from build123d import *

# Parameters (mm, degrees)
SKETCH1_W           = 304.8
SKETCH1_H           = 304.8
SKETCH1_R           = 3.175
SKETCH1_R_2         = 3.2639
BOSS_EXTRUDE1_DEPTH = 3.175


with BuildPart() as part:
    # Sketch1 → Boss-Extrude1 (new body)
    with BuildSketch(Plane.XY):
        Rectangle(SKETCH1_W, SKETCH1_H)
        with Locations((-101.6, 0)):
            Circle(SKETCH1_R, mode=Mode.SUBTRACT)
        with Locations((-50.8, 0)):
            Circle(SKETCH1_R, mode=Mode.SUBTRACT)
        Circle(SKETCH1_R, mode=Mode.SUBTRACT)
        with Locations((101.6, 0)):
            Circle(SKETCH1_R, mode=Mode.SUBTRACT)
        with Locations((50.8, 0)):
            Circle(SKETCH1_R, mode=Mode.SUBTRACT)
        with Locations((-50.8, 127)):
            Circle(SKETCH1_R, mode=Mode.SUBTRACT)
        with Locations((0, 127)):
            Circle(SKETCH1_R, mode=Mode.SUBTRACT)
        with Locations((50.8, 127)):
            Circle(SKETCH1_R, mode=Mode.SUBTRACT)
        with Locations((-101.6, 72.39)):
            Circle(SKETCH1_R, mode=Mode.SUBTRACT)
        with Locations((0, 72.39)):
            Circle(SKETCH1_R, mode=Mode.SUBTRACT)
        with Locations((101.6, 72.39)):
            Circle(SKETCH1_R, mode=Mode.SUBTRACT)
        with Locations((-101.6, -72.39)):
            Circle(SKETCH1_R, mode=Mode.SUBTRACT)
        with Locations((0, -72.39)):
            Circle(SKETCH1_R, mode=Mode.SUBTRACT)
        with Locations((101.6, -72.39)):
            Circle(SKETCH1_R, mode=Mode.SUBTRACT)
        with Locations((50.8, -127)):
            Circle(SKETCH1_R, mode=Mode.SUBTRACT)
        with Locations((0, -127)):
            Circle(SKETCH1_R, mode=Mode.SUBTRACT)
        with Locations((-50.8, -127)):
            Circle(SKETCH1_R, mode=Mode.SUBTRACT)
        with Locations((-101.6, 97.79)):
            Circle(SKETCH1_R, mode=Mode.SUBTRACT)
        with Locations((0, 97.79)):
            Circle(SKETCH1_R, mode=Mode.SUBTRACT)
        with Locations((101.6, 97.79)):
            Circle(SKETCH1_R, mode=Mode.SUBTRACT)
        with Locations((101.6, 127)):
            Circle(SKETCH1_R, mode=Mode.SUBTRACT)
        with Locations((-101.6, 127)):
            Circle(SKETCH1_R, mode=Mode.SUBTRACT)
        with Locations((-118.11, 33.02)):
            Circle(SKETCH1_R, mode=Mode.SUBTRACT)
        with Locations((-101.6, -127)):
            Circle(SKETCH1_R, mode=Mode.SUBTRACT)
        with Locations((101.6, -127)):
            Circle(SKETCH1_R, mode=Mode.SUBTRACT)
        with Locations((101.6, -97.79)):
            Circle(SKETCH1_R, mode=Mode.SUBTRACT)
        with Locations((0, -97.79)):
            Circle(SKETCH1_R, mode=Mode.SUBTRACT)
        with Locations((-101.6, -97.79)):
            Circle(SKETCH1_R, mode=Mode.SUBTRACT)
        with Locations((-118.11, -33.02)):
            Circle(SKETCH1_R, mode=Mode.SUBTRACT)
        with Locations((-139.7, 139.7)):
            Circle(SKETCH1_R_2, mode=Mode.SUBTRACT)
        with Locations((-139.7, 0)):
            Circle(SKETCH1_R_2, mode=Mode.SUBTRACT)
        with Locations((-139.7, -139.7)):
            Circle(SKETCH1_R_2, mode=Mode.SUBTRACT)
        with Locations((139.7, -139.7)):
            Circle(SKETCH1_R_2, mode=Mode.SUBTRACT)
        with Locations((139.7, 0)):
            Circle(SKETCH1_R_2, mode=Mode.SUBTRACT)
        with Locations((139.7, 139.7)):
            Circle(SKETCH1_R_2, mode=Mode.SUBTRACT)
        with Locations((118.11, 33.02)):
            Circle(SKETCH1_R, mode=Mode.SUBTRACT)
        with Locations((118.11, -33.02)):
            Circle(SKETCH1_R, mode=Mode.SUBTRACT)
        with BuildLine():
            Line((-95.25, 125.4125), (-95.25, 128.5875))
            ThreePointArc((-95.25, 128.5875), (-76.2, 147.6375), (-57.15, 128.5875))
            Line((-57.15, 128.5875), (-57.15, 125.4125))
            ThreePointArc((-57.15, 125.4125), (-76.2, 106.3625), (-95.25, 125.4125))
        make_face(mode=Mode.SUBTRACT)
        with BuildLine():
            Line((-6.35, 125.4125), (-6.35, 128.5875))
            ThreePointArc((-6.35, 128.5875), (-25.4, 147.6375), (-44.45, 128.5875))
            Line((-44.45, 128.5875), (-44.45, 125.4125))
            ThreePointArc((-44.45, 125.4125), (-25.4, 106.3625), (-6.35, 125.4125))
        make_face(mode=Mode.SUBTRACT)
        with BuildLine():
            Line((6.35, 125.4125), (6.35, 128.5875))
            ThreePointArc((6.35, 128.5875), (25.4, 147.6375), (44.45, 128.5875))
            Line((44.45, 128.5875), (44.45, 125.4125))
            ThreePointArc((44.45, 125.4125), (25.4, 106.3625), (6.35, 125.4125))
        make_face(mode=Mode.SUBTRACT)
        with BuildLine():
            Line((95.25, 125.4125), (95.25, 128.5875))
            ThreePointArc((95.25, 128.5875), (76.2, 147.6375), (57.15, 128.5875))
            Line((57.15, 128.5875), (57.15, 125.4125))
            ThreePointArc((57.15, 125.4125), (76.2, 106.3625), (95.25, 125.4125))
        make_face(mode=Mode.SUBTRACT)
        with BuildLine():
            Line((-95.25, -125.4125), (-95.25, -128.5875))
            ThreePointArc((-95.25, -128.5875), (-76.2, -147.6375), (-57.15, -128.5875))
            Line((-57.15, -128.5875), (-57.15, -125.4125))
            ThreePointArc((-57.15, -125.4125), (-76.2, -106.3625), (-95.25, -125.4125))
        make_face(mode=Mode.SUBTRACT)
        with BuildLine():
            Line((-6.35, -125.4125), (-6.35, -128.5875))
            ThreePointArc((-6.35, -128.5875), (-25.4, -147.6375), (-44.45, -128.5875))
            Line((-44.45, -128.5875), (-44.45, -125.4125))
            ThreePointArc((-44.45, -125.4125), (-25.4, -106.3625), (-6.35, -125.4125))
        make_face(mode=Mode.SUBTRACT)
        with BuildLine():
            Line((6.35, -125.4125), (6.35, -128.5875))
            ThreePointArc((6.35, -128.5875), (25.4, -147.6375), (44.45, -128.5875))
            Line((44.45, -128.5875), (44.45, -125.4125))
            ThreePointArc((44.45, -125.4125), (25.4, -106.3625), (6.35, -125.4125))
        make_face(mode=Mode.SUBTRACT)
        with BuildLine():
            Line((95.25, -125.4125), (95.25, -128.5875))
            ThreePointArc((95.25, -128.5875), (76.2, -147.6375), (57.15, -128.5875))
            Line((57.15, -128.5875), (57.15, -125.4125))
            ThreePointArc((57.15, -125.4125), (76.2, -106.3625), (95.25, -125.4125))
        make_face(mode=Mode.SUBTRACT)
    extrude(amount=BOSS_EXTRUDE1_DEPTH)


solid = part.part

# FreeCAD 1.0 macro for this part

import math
import FreeCAD as App
import Part
import Sketcher
Q = App.Units.Quantity


def add_polygon(sketch, points):
    """Adds a closed chain of lines whose ends are joined by coincident constraints."""
    first, n = sketch.GeometryCount, len(points)
    for a, b in zip(points, points[1:] + points[:1]):
        sketch.addGeometry(Part.LineSegment(App.Vector(*a, 0), App.Vector(*b, 0)), False)
    for i in range(n):
        sketch.addConstraint(Sketcher.Constraint("Coincident", first + i, 2, first + (i + 1) % n, 1))

doc = App.newDocument("Part")
body = doc.addObject("PartDesign::Body", "Body")

# Sketch on XY plane
sketch1 = body.newObject("Sketcher::SketchObject", "Sketch")
sketch1.AttachmentSupport = (doc.getObject("XY_Plane"), [""])
sketch1.MapMode = "FlatFace"
add_polygon(sketch1, [(-152.4, 152.4), (-152.4, -152.4), (152.4, -152.4), (152.4, 152.4)])  # lines 0-3
sketch1.addGeometry(Part.Circle(App.Vector(-139.7, -139.7, 0), App.Vector(0, 0, 1), 3.3), False)  # 4
sketch1.addGeometry(Part.Circle(App.Vector(-101.6, -127, 0), App.Vector(0, 0, 1), 3.2), False)  # 5
sketch1.addGeometry(Part.LineSegment(App.Vector(-95.2, -128.6, 0), App.Vector(-95.2, -125.4, 0)), False)  # 6
sketch1.addGeometry(Part.ArcOfCircle(Part.Circle(App.Vector(-76.2, -125.4, 0), App.Vector(0, 0, 1), 19.1), math.radians(0), math.radians(180)), False)  # 7
sketch1.addGeometry(Part.LineSegment(App.Vector(-57.1, -125.4, 0), App.Vector(-57.1, -128.6, 0)), False)  # 8
sketch1.addGeometry(Part.ArcOfCircle(Part.Circle(App.Vector(-76.2, -128.6, 0), App.Vector(0, 0, 1), 19.1), math.radians(180), math.radians(360)), False)  # 9
sketch1.addGeometry(Part.Circle(App.Vector(-101.6, -97.8, 0), App.Vector(0, 0, 1), 3.2), False)  # 10
sketch1.addGeometry(Part.Circle(App.Vector(-50.8, -127, 0), App.Vector(0, 0, 1), 3.2), False)  # 11
sketch1.addGeometry(Part.ArcOfCircle(Part.Circle(App.Vector(-25.4, -125.4, 0), App.Vector(0, 0, 1), 19.1), math.radians(0), math.radians(180)), False)  # 12
sketch1.addGeometry(Part.LineSegment(App.Vector(-6.3, -125.4, 0), App.Vector(-6.3, -128.6, 0)), False)  # 13
sketch1.addGeometry(Part.ArcOfCircle(Part.Circle(App.Vector(-25.4, -128.6, 0), App.Vector(0, 0, 1), 19.1), math.radians(180), math.radians(360)), False)  # 14
sketch1.addGeometry(Part.LineSegment(App.Vector(-44.5, -128.6, 0), App.Vector(-44.5, -125.4, 0)), False)  # 15
sketch1.addGeometry(Part.Circle(App.Vector(-101.6, -72.4, 0), App.Vector(0, 0, 1), 3.2), False)  # 16
sketch1.addGeometry(Part.Circle(App.Vector(-118.1, -33, 0), App.Vector(0, 0, 1), 3.2), False)  # 17
sketch1.addGeometry(Part.Circle(App.Vector(0, -127, 0), App.Vector(0, 0, 1), 3.2), False)  # 18
sketch1.addGeometry(Part.LineSegment(App.Vector(6.3, -128.6, 0), App.Vector(6.3, -125.4, 0)), False)  # 19
sketch1.addGeometry(Part.ArcOfCircle(Part.Circle(App.Vector(25.4, -125.4, 0), App.Vector(0, 0, 1), 19.1), math.radians(0), math.radians(180)), False)  # 20
sketch1.addGeometry(Part.LineSegment(App.Vector(44.5, -125.4, 0), App.Vector(44.5, -128.6, 0)), False)  # 21
sketch1.addGeometry(Part.ArcOfCircle(Part.Circle(App.Vector(25.4, -128.6, 0), App.Vector(0, 0, 1), 19.1), math.radians(180), math.radians(360)), False)  # 22
sketch1.addGeometry(Part.Circle(App.Vector(50.8, -127, 0), App.Vector(0, 0, 1), 3.2), False)  # 23
sketch1.addGeometry(Part.Circle(App.Vector(0, -97.8, 0), App.Vector(0, 0, 1), 3.2), False)  # 24
sketch1.addGeometry(Part.ArcOfCircle(Part.Circle(App.Vector(76.2, -125.4, 0), App.Vector(0, 0, 1), 19.1), math.radians(0), math.radians(180)), False)  # 25
sketch1.addGeometry(Part.LineSegment(App.Vector(95.2, -125.4, 0), App.Vector(95.2, -128.6, 0)), False)  # 26
sketch1.addGeometry(Part.ArcOfCircle(Part.Circle(App.Vector(76.2, -128.6, 0), App.Vector(0, 0, 1), 19.1), math.radians(180), math.radians(360)), False)  # 27
sketch1.addGeometry(Part.LineSegment(App.Vector(57.1, -128.6, 0), App.Vector(57.1, -125.4, 0)), False)  # 28
sketch1.addGeometry(Part.Circle(App.Vector(101.6, -127, 0), App.Vector(0, 0, 1), 3.2), False)  # 29
sketch1.addGeometry(Part.Circle(App.Vector(139.7, -139.7, 0), App.Vector(0, 0, 1), 3.3), False)  # 30
sketch1.addGeometry(Part.Circle(App.Vector(101.6, -97.8, 0), App.Vector(0, 0, 1), 3.2), False)  # 31
sketch1.addGeometry(Part.Circle(App.Vector(0, -72.4, 0), App.Vector(0, 0, 1), 3.2), False)  # 32
sketch1.addGeometry(Part.Circle(App.Vector(101.6, -72.4, 0), App.Vector(0, 0, 1), 3.2), False)  # 33
sketch1.addGeometry(Part.Circle(App.Vector(118.1, -33, 0), App.Vector(0, 0, 1), 3.2), False)  # 34
sketch1.addGeometry(Part.Circle(App.Vector(-139.7, 0, 0), App.Vector(0, 0, 1), 3.3), False)  # 35
sketch1.addGeometry(Part.Circle(App.Vector(-118.1, 33, 0), App.Vector(0, 0, 1), 3.2), False)  # 36
sketch1.addGeometry(Part.Circle(App.Vector(-101.6, 0, 0), App.Vector(0, 0, 1), 3.2), False)  # 37
sketch1.addGeometry(Part.Circle(App.Vector(-101.6, 72.4, 0), App.Vector(0, 0, 1), 3.2), False)  # 38
sketch1.addGeometry(Part.Circle(App.Vector(-50.8, 0, 0), App.Vector(0, 0, 1), 3.2), False)  # 39
sketch1.addGeometry(Part.Circle(App.Vector(-101.6, 97.8, 0), App.Vector(0, 0, 1), 3.2), False)  # 40
sketch1.addGeometry(Part.Circle(App.Vector(-139.7, 139.7, 0), App.Vector(0, 0, 1), 3.3), False)  # 41
sketch1.addGeometry(Part.Circle(App.Vector(-101.6, 127, 0), App.Vector(0, 0, 1), 3.2), False)  # 42
sketch1.addGeometry(Part.ArcOfCircle(Part.Circle(App.Vector(-76.2, 125.4, 0), App.Vector(0, 0, 1), 19.1), math.radians(180), math.radians(360)), False)  # 43
sketch1.addGeometry(Part.LineSegment(App.Vector(-95.2, 125.4, 0), App.Vector(-95.2, 128.6, 0)), False)  # 44
sketch1.addGeometry(Part.ArcOfCircle(Part.Circle(App.Vector(-76.2, 128.6, 0), App.Vector(0, 0, 1), 19.1), math.radians(0), math.radians(180)), False)  # 45
sketch1.addGeometry(Part.LineSegment(App.Vector(-57.1, 128.6, 0), App.Vector(-57.1, 125.4, 0)), False)  # 46
sketch1.addGeometry(Part.Circle(App.Vector(-50.8, 127, 0), App.Vector(0, 0, 1), 3.2), False)  # 47
sketch1.addGeometry(Part.LineSegment(App.Vector(-6.3, 128.6, 0), App.Vector(-6.3, 125.4, 0)), False)  # 48
sketch1.addGeometry(Part.ArcOfCircle(Part.Circle(App.Vector(-25.4, 125.4, 0), App.Vector(0, 0, 1), 19.1), math.radians(180), math.radians(360)), False)  # 49
sketch1.addGeometry(Part.LineSegment(App.Vector(-44.5, 125.4, 0), App.Vector(-44.5, 128.6, 0)), False)  # 50
sketch1.addGeometry(Part.ArcOfCircle(Part.Circle(App.Vector(-25.4, 128.6, 0), App.Vector(0, 0, 1), 19.1), math.radians(0), math.radians(180)), False)  # 51
sketch1.addGeometry(Part.Circle(App.Vector(0, 0, 0), App.Vector(0, 0, 1), 3.2), False)  # 52
sketch1.addGeometry(Part.Circle(App.Vector(50.8, 0, 0), App.Vector(0, 0, 1), 3.2), False)  # 53
sketch1.addGeometry(Part.Circle(App.Vector(0, 72.4, 0), App.Vector(0, 0, 1), 3.2), False)  # 54
sketch1.addGeometry(Part.Circle(App.Vector(101.6, 0, 0), App.Vector(0, 0, 1), 3.2), False)  # 55
sketch1.addGeometry(Part.Circle(App.Vector(139.7, 0, 0), App.Vector(0, 0, 1), 3.3), False)  # 56
sketch1.addGeometry(Part.Circle(App.Vector(118.1, 33, 0), App.Vector(0, 0, 1), 3.2), False)  # 57
sketch1.addGeometry(Part.Circle(App.Vector(101.6, 72.4, 0), App.Vector(0, 0, 1), 3.2), False)  # 58
sketch1.addGeometry(Part.Circle(App.Vector(0, 97.8, 0), App.Vector(0, 0, 1), 3.2), False)  # 59
sketch1.addGeometry(Part.Circle(App.Vector(0, 127, 0), App.Vector(0, 0, 1), 3.2), False)  # 60
sketch1.addGeometry(Part.ArcOfCircle(Part.Circle(App.Vector(25.4, 125.4, 0), App.Vector(0, 0, 1), 19.1), math.radians(180), math.radians(360)), False)  # 61
sketch1.addGeometry(Part.LineSegment(App.Vector(6.3, 125.4, 0), App.Vector(6.3, 128.6, 0)), False)  # 62
sketch1.addGeometry(Part.ArcOfCircle(Part.Circle(App.Vector(25.4, 128.6, 0), App.Vector(0, 0, 1), 19.1), math.radians(0), math.radians(180)), False)  # 63
sketch1.addGeometry(Part.LineSegment(App.Vector(44.5, 128.6, 0), App.Vector(44.5, 125.4, 0)), False)  # 64
sketch1.addGeometry(Part.Circle(App.Vector(50.8, 127, 0), App.Vector(0, 0, 1), 3.2), False)  # 65
sketch1.addGeometry(Part.Circle(App.Vector(101.6, 97.8, 0), App.Vector(0, 0, 1), 3.2), False)  # 66
sketch1.addGeometry(Part.LineSegment(App.Vector(95.2, 128.6, 0), App.Vector(95.2, 125.4, 0)), False)  # 67
sketch1.addGeometry(Part.ArcOfCircle(Part.Circle(App.Vector(76.2, 125.4, 0), App.Vector(0, 0, 1), 19.1), math.radians(180), math.radians(360)), False)  # 68
sketch1.addGeometry(Part.LineSegment(App.Vector(57.1, 125.4, 0), App.Vector(57.1, 128.6, 0)), False)  # 69
sketch1.addGeometry(Part.ArcOfCircle(Part.Circle(App.Vector(76.2, 128.6, 0), App.Vector(0, 0, 1), 19.1), math.radians(0), math.radians(180)), False)  # 70
sketch1.addGeometry(Part.Circle(App.Vector(101.6, 127, 0), App.Vector(0, 0, 1), 3.2), False)  # 71
sketch1.addGeometry(Part.Circle(App.Vector(139.7, 139.7, 0), App.Vector(0, 0, 1), 3.3), False)  # 72
sketch1.addConstraint([
    Sketcher.Constraint("Tangent", 6, 2, 7, 2),
    Sketcher.Constraint("Tangent", 7, 1, 8, 1),
    Sketcher.Constraint("Tangent", 8, 2, 9, 2),
    Sketcher.Constraint("Tangent", 9, 1, 6, 1),
    Sketcher.Constraint("Tangent", 12, 1, 13, 1),
    Sketcher.Constraint("Tangent", 13, 2, 14, 2),
    Sketcher.Constraint("Tangent", 14, 1, 15, 1),
    Sketcher.Constraint("Tangent", 15, 2, 12, 2),
    Sketcher.Constraint("Tangent", 19, 2, 20, 2),
    Sketcher.Constraint("Tangent", 20, 1, 21, 1),
    Sketcher.Constraint("Tangent", 21, 2, 22, 2),
    Sketcher.Constraint("Tangent", 22, 1, 19, 1),
    Sketcher.Constraint("Tangent", 25, 1, 26, 1),
    Sketcher.Constraint("Tangent", 26, 2, 27, 2),
    Sketcher.Constraint("Tangent", 27, 1, 28, 1),
    Sketcher.Constraint("Tangent", 28, 2, 25, 2),
    Sketcher.Constraint("Tangent", 43, 1, 44, 1),
    Sketcher.Constraint("Tangent", 44, 2, 45, 2),
    Sketcher.Constraint("Tangent", 45, 1, 46, 1),
    Sketcher.Constraint("Tangent", 46, 2, 43, 2),
    Sketcher.Constraint("Tangent", 48, 2, 49, 2),
    Sketcher.Constraint("Tangent", 49, 1, 50, 1),
    Sketcher.Constraint("Tangent", 50, 2, 51, 2),
    Sketcher.Constraint("Tangent", 51, 1, 48, 1),
    Sketcher.Constraint("Tangent", 61, 1, 62, 1),
    Sketcher.Constraint("Tangent", 62, 2, 63, 2),
    Sketcher.Constraint("Tangent", 63, 1, 64, 1),
    Sketcher.Constraint("Tangent", 64, 2, 61, 2),
    Sketcher.Constraint("Tangent", 67, 2, 68, 2),
    Sketcher.Constraint("Tangent", 68, 1, 69, 1),
    Sketcher.Constraint("Tangent", 69, 2, 70, 2),
    Sketcher.Constraint("Tangent", 70, 1, 67, 1),
    Sketcher.Constraint("Vertical", 0),
    Sketcher.Constraint("Horizontal", 1),
    Sketcher.Constraint("Vertical", 2),
    Sketcher.Constraint("Horizontal", 3),
    Sketcher.Constraint("Vertical", 6),
    Sketcher.Constraint("Vertical", 8),
    Sketcher.Constraint("Vertical", 13),
    Sketcher.Constraint("Vertical", 15),
    Sketcher.Constraint("Vertical", 19),
    Sketcher.Constraint("Vertical", 21),
    Sketcher.Constraint("Vertical", 26),
    Sketcher.Constraint("Vertical", 28),
    Sketcher.Constraint("Vertical", 44),
    Sketcher.Constraint("Vertical", 46),
    Sketcher.Constraint("Vertical", 48),
    Sketcher.Constraint("Vertical", 50),
    Sketcher.Constraint("Vertical", 62),
    Sketcher.Constraint("Vertical", 64),
    Sketcher.Constraint("Vertical", 67),
    Sketcher.Constraint("Vertical", 69),
    Sketcher.Constraint("Coincident", 52, 3, -1, 1),
    Sketcher.Constraint("Equal", 5, 10),
    Sketcher.Constraint("Equal", 10, 11),
    Sketcher.Constraint("Equal", 9, 12),
    Sketcher.Constraint("Equal", 11, 16),
    Sketcher.Constraint("Equal", 16, 17),
    Sketcher.Constraint("Equal", 17, 18),
    Sketcher.Constraint("Equal", 14, 20),
    Sketcher.Constraint("Equal", 18, 23),
    Sketcher.Constraint("Equal", 23, 24),
    Sketcher.Constraint("Equal", 22, 25),
    Sketcher.Constraint("Equal", 24, 29),
    Sketcher.Constraint("Equal", 4, 30),
    Sketcher.Constraint("Equal", 29, 31),
    Sketcher.Constraint("Equal", 31, 32),
    Sketcher.Constraint("Equal", 32, 33),
    Sketcher.Constraint("Equal", 33, 34),
    Sketcher.Constraint("Equal", 30, 35),
    Sketcher.Constraint("Equal", 34, 36),
    Sketcher.Constraint("Equal", 36, 37),
    Sketcher.Constraint("Equal", 37, 38),
    Sketcher.Constraint("Equal", 38, 39),
    Sketcher.Constraint("Equal", 39, 40),
    Sketcher.Constraint("Equal", 35, 41),
    Sketcher.Constraint("Equal", 40, 42),
    Sketcher.Constraint("Equal", 27, 43),
    Sketcher.Constraint("Equal", 42, 47),
    Sketcher.Constraint("Equal", 45, 49),
    Sketcher.Constraint("Equal", 47, 52),
    Sketcher.Constraint("Equal", 52, 53),
    Sketcher.Constraint("Equal", 53, 54),
    Sketcher.Constraint("Equal", 54, 55),
    Sketcher.Constraint("Equal", 41, 56),
    Sketcher.Constraint("Equal", 55, 57),
    Sketcher.Constraint("Equal", 57, 58),
    Sketcher.Constraint("Equal", 58, 59),
    Sketcher.Constraint("Equal", 59, 60),
    Sketcher.Constraint("Equal", 51, 61),
    Sketcher.Constraint("Equal", 60, 65),
    Sketcher.Constraint("Equal", 65, 66),
    Sketcher.Constraint("Equal", 63, 68),
    Sketcher.Constraint("Equal", 66, 71),
    Sketcher.Constraint("Equal", 56, 72),
    Sketcher.Constraint("Symmetric", 34, 3, 36, 3, -1, 1),
    Sketcher.Constraint("Symmetric", 33, 3, 38, 3, -1, 1),
    Sketcher.Constraint("Symmetric", 31, 3, 40, 3, -1, 1),
    Sketcher.Constraint("Symmetric", 30, 3, 41, 3, -1, 1),
    Sketcher.Constraint("Symmetric", 29, 3, 42, 3, -1, 1),
    Sketcher.Constraint("Symmetric", 25, 3, 43, 3, -1, 1),
    Sketcher.Constraint("Symmetric", 23, 3, 47, 3, -1, 1),
    Sketcher.Constraint("Symmetric", 20, 3, 49, 3, -1, 1),
    Sketcher.Constraint("Symmetric", 39, 3, 53, 3, -1, 1),
    Sketcher.Constraint("Symmetric", 32, 3, 54, 3, -1, 1),
    Sketcher.Constraint("Symmetric", 37, 3, 55, 3, -1, 1),
    Sketcher.Constraint("Symmetric", 35, 3, 56, 3, -1, 1),
    Sketcher.Constraint("Symmetric", 17, 3, 57, 3, -1, 1),
    Sketcher.Constraint("Symmetric", 16, 3, 58, 3, -1, 1),
    Sketcher.Constraint("Symmetric", 24, 3, 59, 3, -1, 1),
    Sketcher.Constraint("Symmetric", 18, 3, 60, 3, -1, 1),
    Sketcher.Constraint("Symmetric", 12, 3, 61, 3, -1, 1),
    Sketcher.Constraint("Symmetric", 11, 3, 65, 3, -1, 1),
    Sketcher.Constraint("Symmetric", 10, 3, 66, 3, -1, 1),
    Sketcher.Constraint("Symmetric", 7, 3, 68, 3, -1, 1),
    Sketcher.Constraint("Symmetric", 5, 3, 71, 3, -1, 1),
    Sketcher.Constraint("Symmetric", 4, 3, 72, 3, -1, 1),
    Sketcher.Constraint("Symmetric", 0, 2, 2, 2, -1, 1),
    Sketcher.Constraint("Symmetric", 12, 3, 20, 3, -2),
    Sketcher.Constraint("Symmetric", 11, 3, 23, 3, -2),
    Sketcher.Constraint("Symmetric", 7, 3, 25, 3, -2),
    Sketcher.Constraint("Symmetric", 5, 3, 29, 3, -2),
    Sketcher.Constraint("Symmetric", 4, 3, 30, 3, -2),
    Sketcher.Constraint("Symmetric", 10, 3, 31, 3, -2),
    Sketcher.Constraint("Symmetric", 16, 3, 33, 3, -2),
    Sketcher.Constraint("Symmetric", 17, 3, 34, 3, -2),
    Sketcher.Constraint("PointOnObject", 18, 3, -2),
    Sketcher.Constraint("PointOnObject", 24, 3, -2),
    Sketcher.Constraint("PointOnObject", 32, 3, -2),
    Sketcher.Constraint("PointOnObject", 35, 3, -1),
    Sketcher.Constraint("PointOnObject", 37, 3, -1),
    Sketcher.Constraint("PointOnObject", 39, 3, -1),
    Sketcher.Constraint("Horizontal", 5, 3, 11, 3),
    Sketcher.Constraint("Horizontal", 7, 3, 12, 3),
    Sketcher.Constraint("Horizontal", 9, 3, 14, 3),
    Sketcher.Constraint("Horizontal", 11, 3, 18, 3),
    Sketcher.Constraint("Horizontal", 14, 3, 22, 3),
    Sketcher.Constraint("Horizontal", 10, 3, 24, 3),
    Sketcher.Constraint("Horizontal", 22, 3, 27, 3),
    Sketcher.Constraint("Horizontal", 16, 3, 32, 3),
    Sketcher.Constraint("Horizontal", 45, 3, 51, 3),
    Sketcher.Constraint("Horizontal", 51, 3, 63, 3),
    Sketcher.Constraint("Horizontal", 63, 3, 70, 3),
    Sketcher.Constraint("Vertical", 5, 3, 10, 3),
    Sketcher.Constraint("Vertical", 10, 3, 16, 3),
    Sketcher.Constraint("Vertical", 4, 3, 35, 3),
    Sketcher.Constraint("Vertical", 16, 3, 37, 3),
    Sketcher.Constraint("Vertical", 11, 3, 39, 3),
    Sketcher.Constraint("Equal", 3, 0),
    Sketcher.Constraint("Equal", 28, 44),
    Sketcher.Constraint("Diameter", 5, Q("0.25 in")),
    Sketcher.Constraint("DistanceX", 1, 1, 1, 2, Q("12 in")),
    Sketcher.Constraint("Radius", 7, Q("0.75 in")),
    Sketcher.Constraint("Diameter", 4, Q("0.257 in")),
    Sketcher.Constraint("DistanceX", 5, 3, -1, 1, Q("4 in")),
    Sketcher.Constraint("DistanceY", 5, 3, -1, 1, Q("5 in")),
    Sketcher.Constraint("DistanceX", 7, 3, -1, 1, Q("3 in")),
    Sketcher.Constraint("DistanceX", 11, 3, -1, 1, Q("2 in")),
    Sketcher.Constraint("DistanceX", 12, 3, -1, 1, Q("1 in")),
    Sketcher.Constraint("DistanceX", 4, 3, -1, 1, Q("5.5 in")),
    Sketcher.Constraint("DistanceY", 4, 3, -1, 1, Q("5.5 in")),
    Sketcher.Constraint("DistanceY", 17, 3, -1, 1, Q("1.3 in")),
    Sketcher.Constraint("DistanceY", 6, 1, 6, 2, Q("0.125 in")),
    Sketcher.Constraint("DistanceY", 10, 3, -1, 1, Q("3.85 in")),
    Sketcher.Constraint("DistanceY", 16, 3, -1, 1, Q("2.85 in")),
    Sketcher.Constraint("DistanceX", 17, 3, -1, 1, Q("4.65 in")),
    Sketcher.Constraint("DistanceY", 7, 3, -1, 1, Q("4.9375 in")),
])
pad1 = body.newObject("PartDesign::Pad", "Pad")
pad1.Profile = sketch1
pad1.Length = Q("0.125 in")

doc.recompute()
